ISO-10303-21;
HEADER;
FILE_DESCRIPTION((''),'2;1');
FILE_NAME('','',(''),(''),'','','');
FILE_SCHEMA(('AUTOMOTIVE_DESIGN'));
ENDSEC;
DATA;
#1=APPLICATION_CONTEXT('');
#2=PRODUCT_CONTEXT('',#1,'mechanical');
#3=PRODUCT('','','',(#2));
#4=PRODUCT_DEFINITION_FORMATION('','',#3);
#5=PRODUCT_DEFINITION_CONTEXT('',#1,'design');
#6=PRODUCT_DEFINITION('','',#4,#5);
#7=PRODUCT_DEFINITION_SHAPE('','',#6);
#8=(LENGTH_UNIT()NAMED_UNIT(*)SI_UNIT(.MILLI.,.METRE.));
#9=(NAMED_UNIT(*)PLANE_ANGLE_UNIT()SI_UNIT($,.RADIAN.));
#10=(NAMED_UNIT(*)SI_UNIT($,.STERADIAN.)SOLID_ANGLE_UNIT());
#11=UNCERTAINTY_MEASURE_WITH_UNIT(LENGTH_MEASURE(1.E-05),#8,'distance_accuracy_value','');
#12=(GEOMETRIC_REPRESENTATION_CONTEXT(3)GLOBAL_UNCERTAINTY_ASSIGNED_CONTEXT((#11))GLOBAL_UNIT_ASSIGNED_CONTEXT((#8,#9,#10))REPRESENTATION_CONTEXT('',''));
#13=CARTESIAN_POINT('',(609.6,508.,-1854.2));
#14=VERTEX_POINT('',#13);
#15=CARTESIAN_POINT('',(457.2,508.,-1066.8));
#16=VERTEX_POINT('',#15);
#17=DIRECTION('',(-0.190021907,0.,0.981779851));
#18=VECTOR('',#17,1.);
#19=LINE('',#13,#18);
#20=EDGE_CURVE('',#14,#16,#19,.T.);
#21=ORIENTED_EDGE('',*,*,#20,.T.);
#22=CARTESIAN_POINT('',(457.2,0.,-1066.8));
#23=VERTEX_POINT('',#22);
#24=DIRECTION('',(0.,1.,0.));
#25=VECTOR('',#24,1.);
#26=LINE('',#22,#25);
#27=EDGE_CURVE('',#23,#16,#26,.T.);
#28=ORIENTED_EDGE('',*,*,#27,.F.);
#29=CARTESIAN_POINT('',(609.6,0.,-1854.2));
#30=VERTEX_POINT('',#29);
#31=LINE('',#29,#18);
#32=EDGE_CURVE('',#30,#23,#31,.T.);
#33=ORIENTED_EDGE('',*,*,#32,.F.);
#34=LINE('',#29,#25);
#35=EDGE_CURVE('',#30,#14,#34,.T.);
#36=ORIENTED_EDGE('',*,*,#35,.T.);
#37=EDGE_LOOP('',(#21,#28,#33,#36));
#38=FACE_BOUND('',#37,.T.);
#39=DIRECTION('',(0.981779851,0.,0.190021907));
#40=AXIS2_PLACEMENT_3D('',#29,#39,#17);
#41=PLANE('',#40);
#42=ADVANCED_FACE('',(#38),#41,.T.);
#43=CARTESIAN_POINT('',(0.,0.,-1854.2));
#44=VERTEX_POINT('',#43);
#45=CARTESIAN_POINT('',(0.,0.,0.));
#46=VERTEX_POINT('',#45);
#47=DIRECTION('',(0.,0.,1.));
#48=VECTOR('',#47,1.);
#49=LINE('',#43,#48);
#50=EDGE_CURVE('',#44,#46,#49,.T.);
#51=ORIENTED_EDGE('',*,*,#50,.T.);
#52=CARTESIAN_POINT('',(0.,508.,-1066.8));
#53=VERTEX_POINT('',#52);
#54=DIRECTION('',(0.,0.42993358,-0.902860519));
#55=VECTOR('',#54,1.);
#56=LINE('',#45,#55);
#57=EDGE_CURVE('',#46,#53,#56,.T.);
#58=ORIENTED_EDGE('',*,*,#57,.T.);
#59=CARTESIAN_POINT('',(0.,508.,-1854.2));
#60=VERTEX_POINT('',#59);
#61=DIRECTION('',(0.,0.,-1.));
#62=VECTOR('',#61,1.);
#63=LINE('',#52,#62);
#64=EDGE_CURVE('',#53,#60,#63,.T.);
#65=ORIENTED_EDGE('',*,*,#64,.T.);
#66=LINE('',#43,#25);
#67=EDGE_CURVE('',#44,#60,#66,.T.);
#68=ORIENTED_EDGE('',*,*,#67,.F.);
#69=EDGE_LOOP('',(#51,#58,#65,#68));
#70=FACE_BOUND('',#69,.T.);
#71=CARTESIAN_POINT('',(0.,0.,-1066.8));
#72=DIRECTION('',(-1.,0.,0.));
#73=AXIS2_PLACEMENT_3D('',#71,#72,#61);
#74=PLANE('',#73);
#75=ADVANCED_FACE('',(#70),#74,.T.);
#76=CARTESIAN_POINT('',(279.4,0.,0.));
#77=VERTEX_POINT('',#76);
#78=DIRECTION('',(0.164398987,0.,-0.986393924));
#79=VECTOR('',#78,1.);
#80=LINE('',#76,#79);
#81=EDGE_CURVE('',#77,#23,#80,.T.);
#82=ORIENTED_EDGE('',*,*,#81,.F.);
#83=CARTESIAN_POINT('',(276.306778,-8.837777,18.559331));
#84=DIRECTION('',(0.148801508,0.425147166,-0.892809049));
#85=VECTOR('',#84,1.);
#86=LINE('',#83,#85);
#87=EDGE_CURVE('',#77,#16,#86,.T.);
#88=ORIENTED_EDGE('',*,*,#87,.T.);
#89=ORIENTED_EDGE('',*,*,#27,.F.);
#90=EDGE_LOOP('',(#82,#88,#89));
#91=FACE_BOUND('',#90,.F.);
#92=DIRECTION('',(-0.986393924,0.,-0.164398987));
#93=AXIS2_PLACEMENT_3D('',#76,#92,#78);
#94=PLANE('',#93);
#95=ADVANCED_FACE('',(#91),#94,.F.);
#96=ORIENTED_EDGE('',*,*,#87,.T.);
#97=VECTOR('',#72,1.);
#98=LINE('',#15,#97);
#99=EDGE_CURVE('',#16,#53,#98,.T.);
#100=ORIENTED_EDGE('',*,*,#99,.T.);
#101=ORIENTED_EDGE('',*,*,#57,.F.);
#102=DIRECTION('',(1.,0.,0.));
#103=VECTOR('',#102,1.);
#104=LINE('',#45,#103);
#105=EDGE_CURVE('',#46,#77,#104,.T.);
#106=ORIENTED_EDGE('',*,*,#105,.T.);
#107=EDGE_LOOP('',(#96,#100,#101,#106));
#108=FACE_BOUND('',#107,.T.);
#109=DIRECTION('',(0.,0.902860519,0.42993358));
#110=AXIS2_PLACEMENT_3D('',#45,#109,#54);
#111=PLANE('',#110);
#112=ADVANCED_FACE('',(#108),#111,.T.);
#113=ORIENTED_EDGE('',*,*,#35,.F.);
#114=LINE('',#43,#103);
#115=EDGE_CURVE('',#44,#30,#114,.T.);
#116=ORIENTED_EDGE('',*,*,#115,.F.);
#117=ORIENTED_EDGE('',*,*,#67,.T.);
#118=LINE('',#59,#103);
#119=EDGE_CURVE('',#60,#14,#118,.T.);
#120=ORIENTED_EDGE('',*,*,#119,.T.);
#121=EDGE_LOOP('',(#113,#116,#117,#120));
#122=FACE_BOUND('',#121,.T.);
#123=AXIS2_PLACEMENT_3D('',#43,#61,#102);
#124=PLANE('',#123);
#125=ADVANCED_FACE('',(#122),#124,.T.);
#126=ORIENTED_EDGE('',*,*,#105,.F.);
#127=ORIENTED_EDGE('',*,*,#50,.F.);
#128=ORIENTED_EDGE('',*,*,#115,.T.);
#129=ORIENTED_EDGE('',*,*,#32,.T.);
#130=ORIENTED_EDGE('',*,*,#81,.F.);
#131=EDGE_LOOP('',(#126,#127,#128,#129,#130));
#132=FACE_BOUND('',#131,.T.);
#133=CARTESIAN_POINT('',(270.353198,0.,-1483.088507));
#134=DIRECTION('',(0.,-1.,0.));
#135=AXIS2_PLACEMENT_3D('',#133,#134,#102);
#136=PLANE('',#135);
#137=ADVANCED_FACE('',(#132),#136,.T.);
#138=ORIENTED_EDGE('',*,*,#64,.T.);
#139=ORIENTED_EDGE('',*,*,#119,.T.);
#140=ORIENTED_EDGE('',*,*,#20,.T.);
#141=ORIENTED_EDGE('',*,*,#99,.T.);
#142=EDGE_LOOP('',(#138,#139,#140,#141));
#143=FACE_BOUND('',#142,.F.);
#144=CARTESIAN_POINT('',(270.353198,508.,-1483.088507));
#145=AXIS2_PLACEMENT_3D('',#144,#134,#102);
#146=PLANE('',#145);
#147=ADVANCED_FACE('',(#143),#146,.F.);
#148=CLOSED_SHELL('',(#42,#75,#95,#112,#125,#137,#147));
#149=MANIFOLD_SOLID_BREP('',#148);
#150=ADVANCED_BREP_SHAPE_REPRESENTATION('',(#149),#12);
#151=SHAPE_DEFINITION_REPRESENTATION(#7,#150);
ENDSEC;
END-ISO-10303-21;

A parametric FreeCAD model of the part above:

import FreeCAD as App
import Part
import Sketcher
from FreeCAD import Vector
Q = App.Units.Quantity


def add_polygon(sketch, points):
    """Adds a closed chain of lines whose ends are joined by coincident constraints."""
    first, n = sketch.GeometryCount, len(points)
    for a, b in zip(points, points[1:] + points[:1]):
        sketch.addGeometry(Part.LineSegment(App.Vector(*a, 0), App.Vector(*b, 0)), False)
    for i in range(n):
        sketch.addConstraint(Sketcher.Constraint("Coincident", first + i, 2, first + (i + 1) % n, 1))

doc = App.newDocument("Part")
body = doc.addObject("PartDesign::Body", "Body")

# Sketch on XZ plane
sketch1 = body.newObject("Sketcher::SketchObject", "Sketch")
sketch1.AttachmentSupport = (doc.getObject("XZ_Plane"), [""])
sketch1.MapMode = "FlatFace"
add_polygon(sketch1, [(0, -1067), (0, 0), (279, 0), (457, -1067)])  # lines 0-3
sketch1.addConstraint([
    Sketcher.Constraint("Vertical", 0),
    Sketcher.Constraint("Horizontal", 1),
    Sketcher.Constraint("Horizontal", 3),
    Sketcher.Constraint("Coincident", 0, 2, -1, 1),
    Sketcher.Constraint("DistanceX", 1, 1, 1, 2, Q("11 in")),
    Sketcher.Constraint("DistanceX", 3, 2, 3, 1, Q("18 in")),
    Sketcher.Constraint("DistanceY", 0, 1, 0, 2, Q("42 in")),
])
pad1 = body.newObject("PartDesign::Pad", "Pad")
pad1.Profile = sketch1
pad1.Length = Q("20 in")
pad1.Reversed = True

# Sketch on YZ plane
sketch2 = body.newObject("Sketcher::SketchObject", "Sketch001")
sketch2.AttachmentSupport = (doc.getObject("YZ_Plane"), [""])
sketch2.MapMode = "FlatFace"
add_polygon(sketch2, [(508, -1067), (0, 0), (733, 0), (733, -1067)])  # lines 0-3
sketch2.addConstraint([
    Sketcher.Constraint("Horizontal", 1),
    Sketcher.Constraint("Vertical", 2),
    Sketcher.Constraint("Horizontal", 3),
    Sketcher.Constraint("Coincident", 0, 2, -1, 1),
    Sketcher.Constraint("DistanceY", 2, 2, 2, 1, Q("42 in")),
    Sketcher.Constraint("DistanceX", -1, 1, 3, 2, Q("20 in")),
    Sketcher.Constraint("DistanceX", 1, 1, 1, 2, Q("732.672418 mm")),
])
pocket1 = body.newObject("PartDesign::Pocket", "Pocket")
pocket1.Profile = sketch2
pocket1.Length = Q("20 in")
pocket1.Reversed = True

# Sketch on XZ plane
sketch3 = body.newObject("Sketcher::SketchObject", "Sketch002")
sketch3.AttachmentSupport = (doc.getObject("XZ_Plane"), [""])
sketch3.MapMode = "FlatFace"
add_polygon(sketch3, [(0, -1067), (0, -1854), (610, -1854), (457, -1067)])  # lines 0-3
sketch3.addConstraint([
    Sketcher.Constraint("Vertical", 0),
    Sketcher.Constraint("Horizontal", 1),
    Sketcher.Constraint("Horizontal", 3),
    Sketcher.Constraint("PointOnObject", 0, 2, -2),
    Sketcher.Constraint("DistanceX", 1, 1, 1, 2, Q("24 in")),
    Sketcher.Constraint("DistanceX", 3, 2, 3, 1, Q("18 in")),
    Sketcher.Constraint("DistanceY", 0, 2, 0, 1, Q("31 in")),
    Sketcher.Constraint("DistanceY", 0, 2, -1, 1, Q("73 in")),
])
pad2 = body.newObject("PartDesign::Pad", "Pad001")
pad2.Profile = sketch3
pad2.Length = Q("20 in")
pad2.Reversed = True

doc.recompute()
